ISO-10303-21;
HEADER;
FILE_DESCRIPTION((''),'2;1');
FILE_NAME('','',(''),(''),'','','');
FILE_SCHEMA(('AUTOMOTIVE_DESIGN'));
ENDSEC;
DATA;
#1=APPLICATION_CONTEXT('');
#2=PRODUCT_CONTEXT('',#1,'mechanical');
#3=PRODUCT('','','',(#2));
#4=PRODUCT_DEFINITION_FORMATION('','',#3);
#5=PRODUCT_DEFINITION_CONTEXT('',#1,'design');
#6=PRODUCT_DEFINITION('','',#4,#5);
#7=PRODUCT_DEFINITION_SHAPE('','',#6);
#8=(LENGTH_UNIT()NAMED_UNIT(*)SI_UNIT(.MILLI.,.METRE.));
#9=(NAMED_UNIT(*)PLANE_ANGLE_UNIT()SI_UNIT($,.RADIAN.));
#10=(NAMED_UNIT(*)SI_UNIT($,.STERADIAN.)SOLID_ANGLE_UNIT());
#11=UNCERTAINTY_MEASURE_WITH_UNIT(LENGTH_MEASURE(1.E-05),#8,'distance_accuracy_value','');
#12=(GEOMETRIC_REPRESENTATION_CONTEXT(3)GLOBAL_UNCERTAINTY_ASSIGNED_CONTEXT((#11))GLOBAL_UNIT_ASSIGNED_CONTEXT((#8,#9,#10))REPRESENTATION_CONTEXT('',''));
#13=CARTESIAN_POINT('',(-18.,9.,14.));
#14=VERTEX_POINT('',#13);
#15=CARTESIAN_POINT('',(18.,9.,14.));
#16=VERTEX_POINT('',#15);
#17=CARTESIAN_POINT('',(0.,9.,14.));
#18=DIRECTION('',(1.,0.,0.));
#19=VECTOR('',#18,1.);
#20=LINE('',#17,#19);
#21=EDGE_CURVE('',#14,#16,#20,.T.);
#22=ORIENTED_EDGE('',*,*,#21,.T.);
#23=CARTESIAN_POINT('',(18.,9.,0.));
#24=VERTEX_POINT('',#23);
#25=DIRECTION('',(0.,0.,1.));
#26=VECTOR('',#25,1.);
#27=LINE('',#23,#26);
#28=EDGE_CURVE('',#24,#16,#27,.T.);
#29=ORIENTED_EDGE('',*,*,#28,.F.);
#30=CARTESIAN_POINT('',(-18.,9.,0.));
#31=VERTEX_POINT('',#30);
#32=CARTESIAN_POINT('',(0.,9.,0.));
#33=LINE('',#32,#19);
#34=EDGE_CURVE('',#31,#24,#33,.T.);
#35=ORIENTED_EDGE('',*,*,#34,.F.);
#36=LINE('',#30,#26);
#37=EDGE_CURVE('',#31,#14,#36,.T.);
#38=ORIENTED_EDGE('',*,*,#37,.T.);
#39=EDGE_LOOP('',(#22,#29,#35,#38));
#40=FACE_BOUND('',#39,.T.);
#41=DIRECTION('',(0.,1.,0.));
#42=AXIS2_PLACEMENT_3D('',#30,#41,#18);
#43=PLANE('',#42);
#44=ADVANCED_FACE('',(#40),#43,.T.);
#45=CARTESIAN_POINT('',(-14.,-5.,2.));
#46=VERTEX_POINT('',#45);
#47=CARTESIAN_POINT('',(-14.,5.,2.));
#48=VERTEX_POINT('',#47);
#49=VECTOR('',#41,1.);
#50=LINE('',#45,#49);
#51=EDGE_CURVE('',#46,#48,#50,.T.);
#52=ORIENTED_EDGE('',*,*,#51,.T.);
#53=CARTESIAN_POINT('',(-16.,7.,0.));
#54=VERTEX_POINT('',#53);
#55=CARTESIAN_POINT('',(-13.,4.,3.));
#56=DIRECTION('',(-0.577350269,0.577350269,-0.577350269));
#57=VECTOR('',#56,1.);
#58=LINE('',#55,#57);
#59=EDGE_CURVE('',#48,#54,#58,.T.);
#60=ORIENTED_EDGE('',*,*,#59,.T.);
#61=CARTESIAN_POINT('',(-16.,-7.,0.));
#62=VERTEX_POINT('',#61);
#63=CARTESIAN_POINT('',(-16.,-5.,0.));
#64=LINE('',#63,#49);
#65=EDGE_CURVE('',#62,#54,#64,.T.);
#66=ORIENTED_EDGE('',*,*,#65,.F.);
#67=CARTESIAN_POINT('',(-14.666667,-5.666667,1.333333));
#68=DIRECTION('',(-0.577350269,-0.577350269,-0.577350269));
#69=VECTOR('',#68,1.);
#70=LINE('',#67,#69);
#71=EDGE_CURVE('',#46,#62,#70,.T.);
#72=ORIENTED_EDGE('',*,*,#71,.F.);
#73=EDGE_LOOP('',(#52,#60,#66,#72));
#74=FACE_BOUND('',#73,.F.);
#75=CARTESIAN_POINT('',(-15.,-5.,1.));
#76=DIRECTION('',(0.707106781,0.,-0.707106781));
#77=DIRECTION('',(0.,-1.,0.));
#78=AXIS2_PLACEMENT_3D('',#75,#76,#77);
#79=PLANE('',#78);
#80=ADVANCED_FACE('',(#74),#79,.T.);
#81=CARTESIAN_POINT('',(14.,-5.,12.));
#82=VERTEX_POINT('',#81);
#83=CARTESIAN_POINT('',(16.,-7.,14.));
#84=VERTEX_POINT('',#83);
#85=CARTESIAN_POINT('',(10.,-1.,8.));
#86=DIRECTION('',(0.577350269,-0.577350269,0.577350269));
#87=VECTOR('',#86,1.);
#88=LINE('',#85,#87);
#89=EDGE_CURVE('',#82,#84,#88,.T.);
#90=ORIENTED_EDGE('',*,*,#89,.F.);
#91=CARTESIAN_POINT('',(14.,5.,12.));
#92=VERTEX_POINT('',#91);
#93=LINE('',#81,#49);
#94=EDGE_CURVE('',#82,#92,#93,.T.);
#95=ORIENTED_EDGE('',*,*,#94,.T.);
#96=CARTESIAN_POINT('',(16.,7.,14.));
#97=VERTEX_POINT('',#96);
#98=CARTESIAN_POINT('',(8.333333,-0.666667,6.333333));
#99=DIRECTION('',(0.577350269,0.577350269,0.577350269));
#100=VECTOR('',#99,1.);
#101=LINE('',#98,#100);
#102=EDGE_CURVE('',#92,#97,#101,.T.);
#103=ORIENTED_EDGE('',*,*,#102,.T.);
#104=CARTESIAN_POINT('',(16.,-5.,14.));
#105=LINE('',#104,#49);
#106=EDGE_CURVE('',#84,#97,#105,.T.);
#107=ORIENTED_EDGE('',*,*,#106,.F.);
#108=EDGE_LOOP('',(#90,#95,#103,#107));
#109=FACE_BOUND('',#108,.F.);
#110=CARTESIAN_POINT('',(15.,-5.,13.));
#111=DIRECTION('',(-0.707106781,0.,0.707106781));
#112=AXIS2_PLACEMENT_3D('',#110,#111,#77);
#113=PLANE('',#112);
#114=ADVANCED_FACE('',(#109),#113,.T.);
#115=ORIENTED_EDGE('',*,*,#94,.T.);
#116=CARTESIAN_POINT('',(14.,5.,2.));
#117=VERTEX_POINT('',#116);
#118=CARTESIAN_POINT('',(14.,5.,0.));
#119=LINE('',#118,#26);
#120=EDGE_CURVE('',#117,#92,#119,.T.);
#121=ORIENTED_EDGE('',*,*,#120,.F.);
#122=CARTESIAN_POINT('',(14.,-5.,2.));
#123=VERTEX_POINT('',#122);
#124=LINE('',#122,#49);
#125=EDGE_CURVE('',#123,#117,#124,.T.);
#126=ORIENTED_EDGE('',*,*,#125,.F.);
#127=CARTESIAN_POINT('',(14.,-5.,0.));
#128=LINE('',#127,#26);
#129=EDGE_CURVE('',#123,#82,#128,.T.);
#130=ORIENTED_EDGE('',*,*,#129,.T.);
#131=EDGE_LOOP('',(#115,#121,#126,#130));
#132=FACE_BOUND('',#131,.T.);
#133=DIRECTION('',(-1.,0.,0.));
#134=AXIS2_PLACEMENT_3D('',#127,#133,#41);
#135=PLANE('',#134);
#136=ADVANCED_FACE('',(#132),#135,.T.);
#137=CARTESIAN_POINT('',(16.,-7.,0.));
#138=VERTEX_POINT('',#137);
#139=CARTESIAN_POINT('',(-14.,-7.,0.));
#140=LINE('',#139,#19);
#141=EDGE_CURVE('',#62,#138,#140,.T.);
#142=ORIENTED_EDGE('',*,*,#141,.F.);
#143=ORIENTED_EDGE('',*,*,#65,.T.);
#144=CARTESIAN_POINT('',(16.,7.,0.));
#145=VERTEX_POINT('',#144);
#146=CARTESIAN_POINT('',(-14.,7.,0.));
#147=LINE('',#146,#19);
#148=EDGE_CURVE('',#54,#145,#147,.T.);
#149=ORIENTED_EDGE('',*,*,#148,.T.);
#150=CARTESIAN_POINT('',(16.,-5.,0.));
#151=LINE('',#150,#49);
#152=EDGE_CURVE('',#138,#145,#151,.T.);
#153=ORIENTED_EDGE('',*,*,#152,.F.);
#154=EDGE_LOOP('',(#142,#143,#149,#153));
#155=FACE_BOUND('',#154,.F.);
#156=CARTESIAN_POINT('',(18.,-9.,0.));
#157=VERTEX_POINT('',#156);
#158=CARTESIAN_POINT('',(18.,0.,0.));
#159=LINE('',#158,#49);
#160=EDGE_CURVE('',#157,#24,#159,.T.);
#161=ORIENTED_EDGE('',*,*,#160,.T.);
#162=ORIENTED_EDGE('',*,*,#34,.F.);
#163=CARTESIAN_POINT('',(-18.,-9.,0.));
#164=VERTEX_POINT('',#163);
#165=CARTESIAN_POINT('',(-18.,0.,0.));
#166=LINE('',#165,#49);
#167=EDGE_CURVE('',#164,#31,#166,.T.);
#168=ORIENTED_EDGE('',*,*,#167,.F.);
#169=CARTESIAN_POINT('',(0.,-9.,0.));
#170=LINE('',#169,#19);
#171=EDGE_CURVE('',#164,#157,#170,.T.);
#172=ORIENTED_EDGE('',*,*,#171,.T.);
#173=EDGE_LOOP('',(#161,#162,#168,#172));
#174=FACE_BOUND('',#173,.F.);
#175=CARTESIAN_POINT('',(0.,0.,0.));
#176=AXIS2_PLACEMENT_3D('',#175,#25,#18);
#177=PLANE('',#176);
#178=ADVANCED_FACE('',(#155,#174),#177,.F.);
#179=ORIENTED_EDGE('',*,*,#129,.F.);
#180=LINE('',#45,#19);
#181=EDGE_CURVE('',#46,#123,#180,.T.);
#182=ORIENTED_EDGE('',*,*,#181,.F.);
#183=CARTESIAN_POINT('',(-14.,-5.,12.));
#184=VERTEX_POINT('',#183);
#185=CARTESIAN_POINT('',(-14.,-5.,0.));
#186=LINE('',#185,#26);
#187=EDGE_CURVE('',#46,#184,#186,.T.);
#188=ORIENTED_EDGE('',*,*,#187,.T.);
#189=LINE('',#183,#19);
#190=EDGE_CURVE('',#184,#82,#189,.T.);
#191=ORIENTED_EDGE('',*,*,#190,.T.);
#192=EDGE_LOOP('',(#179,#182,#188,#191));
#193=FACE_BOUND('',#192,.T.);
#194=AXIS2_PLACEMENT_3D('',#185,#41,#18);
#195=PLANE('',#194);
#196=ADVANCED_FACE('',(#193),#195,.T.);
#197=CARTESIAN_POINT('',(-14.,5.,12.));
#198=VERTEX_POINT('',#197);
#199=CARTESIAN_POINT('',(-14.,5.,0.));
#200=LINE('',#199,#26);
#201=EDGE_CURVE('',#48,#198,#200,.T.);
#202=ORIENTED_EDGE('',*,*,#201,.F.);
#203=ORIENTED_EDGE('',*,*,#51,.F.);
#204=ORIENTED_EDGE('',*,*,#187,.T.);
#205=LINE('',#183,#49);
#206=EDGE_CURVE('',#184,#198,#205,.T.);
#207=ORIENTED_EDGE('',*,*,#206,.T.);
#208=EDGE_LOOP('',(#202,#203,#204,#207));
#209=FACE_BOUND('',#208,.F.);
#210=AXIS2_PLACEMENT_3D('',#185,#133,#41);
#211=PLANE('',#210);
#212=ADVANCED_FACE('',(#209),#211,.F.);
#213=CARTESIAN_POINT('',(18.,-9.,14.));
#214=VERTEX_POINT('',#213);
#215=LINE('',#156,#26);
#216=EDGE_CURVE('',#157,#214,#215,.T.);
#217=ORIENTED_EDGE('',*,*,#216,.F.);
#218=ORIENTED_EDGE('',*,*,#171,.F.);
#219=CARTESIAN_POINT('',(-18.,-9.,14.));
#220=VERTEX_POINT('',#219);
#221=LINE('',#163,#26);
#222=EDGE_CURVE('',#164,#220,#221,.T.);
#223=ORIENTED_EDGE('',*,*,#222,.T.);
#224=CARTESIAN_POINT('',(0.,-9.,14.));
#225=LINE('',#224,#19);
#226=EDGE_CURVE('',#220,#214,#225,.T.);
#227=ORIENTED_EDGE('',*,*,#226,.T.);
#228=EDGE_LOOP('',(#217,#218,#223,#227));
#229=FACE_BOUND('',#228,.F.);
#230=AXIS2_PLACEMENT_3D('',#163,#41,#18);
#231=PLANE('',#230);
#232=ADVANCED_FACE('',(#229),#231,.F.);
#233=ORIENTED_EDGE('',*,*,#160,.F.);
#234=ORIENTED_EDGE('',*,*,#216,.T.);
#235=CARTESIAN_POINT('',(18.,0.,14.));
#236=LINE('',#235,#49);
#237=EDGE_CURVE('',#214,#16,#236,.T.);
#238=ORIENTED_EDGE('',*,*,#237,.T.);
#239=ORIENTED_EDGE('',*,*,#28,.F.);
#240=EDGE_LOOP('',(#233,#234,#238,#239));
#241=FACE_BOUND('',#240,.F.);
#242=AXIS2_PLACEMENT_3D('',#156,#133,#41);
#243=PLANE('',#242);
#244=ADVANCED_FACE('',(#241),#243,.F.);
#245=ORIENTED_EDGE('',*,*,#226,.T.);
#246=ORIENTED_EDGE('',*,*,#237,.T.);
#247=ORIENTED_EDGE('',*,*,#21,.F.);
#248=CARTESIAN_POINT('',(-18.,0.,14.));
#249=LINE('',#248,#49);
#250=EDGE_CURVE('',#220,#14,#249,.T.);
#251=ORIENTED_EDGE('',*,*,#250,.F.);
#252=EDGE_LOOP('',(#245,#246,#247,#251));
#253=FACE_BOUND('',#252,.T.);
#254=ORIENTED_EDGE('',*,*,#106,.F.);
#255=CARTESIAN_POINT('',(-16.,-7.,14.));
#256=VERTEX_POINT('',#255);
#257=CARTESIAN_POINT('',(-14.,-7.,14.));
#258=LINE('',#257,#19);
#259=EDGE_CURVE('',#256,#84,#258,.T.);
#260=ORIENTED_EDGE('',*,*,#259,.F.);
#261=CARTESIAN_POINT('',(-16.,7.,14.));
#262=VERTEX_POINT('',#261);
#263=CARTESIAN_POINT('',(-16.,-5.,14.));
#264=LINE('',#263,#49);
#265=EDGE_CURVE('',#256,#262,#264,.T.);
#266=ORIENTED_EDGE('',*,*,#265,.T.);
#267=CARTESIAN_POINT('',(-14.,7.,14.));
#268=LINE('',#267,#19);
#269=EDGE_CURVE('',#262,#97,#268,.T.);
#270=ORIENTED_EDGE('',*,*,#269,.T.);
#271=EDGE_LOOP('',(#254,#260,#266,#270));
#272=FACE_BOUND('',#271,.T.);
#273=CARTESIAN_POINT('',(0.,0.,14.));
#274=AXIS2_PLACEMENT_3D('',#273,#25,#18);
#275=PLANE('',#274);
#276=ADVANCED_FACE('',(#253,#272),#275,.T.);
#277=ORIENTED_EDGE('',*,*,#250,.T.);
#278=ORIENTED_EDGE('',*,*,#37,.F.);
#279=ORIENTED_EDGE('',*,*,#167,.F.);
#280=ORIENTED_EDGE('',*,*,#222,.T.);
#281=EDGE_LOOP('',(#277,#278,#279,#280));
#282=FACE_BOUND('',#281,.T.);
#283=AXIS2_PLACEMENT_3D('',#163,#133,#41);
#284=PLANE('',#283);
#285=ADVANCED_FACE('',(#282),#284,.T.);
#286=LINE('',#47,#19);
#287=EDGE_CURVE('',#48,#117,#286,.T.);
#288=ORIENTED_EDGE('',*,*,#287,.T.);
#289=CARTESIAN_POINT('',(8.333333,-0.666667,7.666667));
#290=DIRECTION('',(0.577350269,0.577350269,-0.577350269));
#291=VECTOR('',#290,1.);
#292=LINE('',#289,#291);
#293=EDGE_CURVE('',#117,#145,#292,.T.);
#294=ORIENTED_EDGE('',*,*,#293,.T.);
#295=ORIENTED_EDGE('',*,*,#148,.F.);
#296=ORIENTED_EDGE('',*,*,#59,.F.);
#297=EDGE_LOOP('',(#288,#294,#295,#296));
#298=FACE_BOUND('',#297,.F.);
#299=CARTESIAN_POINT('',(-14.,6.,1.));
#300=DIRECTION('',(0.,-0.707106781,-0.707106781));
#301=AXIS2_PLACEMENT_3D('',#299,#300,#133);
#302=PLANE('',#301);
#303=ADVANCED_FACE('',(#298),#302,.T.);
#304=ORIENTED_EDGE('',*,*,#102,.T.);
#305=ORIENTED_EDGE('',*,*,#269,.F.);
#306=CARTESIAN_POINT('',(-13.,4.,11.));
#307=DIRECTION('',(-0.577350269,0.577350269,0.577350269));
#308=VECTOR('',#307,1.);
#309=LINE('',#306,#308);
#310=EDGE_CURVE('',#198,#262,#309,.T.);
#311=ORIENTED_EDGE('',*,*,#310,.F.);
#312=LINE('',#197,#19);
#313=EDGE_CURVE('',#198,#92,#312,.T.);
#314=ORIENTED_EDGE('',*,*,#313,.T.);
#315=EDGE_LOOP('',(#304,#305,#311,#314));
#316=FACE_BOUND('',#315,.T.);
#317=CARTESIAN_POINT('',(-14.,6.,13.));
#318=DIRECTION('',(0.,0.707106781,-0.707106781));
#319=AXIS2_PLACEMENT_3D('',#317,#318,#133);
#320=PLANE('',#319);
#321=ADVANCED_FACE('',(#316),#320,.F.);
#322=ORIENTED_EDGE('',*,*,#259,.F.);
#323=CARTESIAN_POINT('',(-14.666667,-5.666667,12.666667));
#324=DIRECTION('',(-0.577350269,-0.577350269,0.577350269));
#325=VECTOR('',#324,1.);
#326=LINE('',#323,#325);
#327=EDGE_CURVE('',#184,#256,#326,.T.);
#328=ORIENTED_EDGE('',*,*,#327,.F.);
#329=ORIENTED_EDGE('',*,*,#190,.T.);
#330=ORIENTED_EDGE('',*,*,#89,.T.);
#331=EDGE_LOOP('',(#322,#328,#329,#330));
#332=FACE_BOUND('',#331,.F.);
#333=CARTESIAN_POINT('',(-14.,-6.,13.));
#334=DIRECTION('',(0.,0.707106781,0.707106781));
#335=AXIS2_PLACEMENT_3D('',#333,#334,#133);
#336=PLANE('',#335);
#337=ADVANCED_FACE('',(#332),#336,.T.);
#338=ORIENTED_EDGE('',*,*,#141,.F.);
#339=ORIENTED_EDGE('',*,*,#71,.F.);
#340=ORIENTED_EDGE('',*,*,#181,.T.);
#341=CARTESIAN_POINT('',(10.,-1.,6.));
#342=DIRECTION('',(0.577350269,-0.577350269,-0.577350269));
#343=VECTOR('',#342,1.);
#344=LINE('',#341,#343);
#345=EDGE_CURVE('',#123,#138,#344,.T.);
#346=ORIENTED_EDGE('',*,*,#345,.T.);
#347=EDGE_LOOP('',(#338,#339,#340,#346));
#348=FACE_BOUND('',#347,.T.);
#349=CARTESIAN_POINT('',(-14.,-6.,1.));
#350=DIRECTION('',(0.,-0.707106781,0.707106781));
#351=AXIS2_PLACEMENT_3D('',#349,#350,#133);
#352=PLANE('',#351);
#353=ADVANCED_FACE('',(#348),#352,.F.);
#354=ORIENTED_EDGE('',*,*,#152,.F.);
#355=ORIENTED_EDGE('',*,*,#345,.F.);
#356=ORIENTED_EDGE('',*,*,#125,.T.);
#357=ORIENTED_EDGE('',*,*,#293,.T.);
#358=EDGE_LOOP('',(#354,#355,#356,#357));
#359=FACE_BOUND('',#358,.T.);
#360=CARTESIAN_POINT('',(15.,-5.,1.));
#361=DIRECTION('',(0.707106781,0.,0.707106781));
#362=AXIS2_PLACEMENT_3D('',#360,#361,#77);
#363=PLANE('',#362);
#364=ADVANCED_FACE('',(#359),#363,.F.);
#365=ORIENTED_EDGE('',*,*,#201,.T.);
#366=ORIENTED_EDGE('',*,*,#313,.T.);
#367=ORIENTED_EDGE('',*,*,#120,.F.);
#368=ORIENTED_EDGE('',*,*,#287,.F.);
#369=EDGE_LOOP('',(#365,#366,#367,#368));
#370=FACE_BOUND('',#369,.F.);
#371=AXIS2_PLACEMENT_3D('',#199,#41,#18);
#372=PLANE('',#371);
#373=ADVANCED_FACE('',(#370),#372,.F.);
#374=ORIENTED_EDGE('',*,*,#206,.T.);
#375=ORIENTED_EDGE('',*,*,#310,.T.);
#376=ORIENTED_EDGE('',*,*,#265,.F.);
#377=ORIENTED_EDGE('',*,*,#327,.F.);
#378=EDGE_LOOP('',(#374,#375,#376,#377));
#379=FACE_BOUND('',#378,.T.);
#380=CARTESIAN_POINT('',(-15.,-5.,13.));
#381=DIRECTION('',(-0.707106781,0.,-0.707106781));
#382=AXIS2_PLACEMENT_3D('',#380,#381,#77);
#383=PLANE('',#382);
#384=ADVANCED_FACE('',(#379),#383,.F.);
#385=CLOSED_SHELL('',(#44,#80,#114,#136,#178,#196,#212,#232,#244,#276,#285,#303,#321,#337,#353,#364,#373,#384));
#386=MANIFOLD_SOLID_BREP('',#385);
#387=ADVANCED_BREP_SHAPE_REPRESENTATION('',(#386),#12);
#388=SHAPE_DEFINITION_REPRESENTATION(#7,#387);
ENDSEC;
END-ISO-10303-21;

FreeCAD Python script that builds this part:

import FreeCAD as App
import Part
import Sketcher

V = App.Vector


def edges_at(feature, points):
    """Names of the edges that pass closest to the given points."""
    edges = feature.Shape.Edges
    near = lambda p: min(range(len(edges)), key=lambda i: edges[i].distToShape(Part.Vertex(*p))[0])
    return sorted({f"Edge{near(p) + 1}" for p in points})


def add_polygon(sketch, points):
    """Adds a closed chain of lines whose ends are joined by coincident constraints."""
    first, n = sketch.GeometryCount, len(points)
    for a, b in zip(points, points[1:] + points[:1]):
        sketch.addGeometry(Part.LineSegment(App.Vector(*a, 0), App.Vector(*b, 0)), False)
    for i in range(n):
        sketch.addConstraint(Sketcher.Constraint("Coincident", first + i, 2, first + (i + 1) % n, 1))

doc = App.newDocument("Part")
body = doc.addObject("PartDesign::Body", "Body")

# Sketch on XY plane
sketch1 = body.newObject("Sketcher::SketchObject", "Sketch")
sketch1.AttachmentSupport = (doc.getObject("XY_Plane"), [""])
sketch1.MapMode = "FlatFace"
add_polygon(sketch1, [(-18, 9), (-18, -9), (18, -9), (18, 9)])  # lines 0-3
add_polygon(sketch1, [(14, -5), (-14, -5), (-14, 5), (14, 5)])  # lines 4-7
sketch1.addConstraint([
    Sketcher.Constraint("Vertical", 0),
    Sketcher.Constraint("Horizontal", 1),
    Sketcher.Constraint("Vertical", 2),
    Sketcher.Constraint("Horizontal", 3),
    Sketcher.Constraint("Horizontal", 4),
    Sketcher.Constraint("Vertical", 5),
    Sketcher.Constraint("Horizontal", 6),
    Sketcher.Constraint("Vertical", 7),
    Sketcher.Constraint("Symmetric", 0, 2, 2, 2, -1, 1),
    Sketcher.Constraint("Symmetric", 4, 2, 6, 2, -1, 1),
    Sketcher.Constraint("DistanceX", 1, 1, 1, 2, 36.0),
    Sketcher.Constraint("DistanceX", 4, 2, 4, 1, 28.0),
    Sketcher.Constraint("DistanceY", 0, 2, 0, 1, 18.0),
    Sketcher.Constraint("DistanceY", 5, 1, 5, 2, 10.0),
])
pad1 = body.newObject("PartDesign::Pad", "Pad")
pad1.Profile = sketch1
pad1.Length = 14
doc.recompute()

chamfer = body.newObject("PartDesign::Chamfer", "Chamfer")
chamfer.Base = (pad1, edges_at(pad1, [
    (0, 5, 14),
    (0, 5, 0),
    (0, -5, 0),
    (14, 0, 14),
    (0, -5, 14),
    (-14, 0, 0),
    (14, 0, 0),
    (-14, 0, 14),
]))
chamfer.Size = 2

doc.recompute()
